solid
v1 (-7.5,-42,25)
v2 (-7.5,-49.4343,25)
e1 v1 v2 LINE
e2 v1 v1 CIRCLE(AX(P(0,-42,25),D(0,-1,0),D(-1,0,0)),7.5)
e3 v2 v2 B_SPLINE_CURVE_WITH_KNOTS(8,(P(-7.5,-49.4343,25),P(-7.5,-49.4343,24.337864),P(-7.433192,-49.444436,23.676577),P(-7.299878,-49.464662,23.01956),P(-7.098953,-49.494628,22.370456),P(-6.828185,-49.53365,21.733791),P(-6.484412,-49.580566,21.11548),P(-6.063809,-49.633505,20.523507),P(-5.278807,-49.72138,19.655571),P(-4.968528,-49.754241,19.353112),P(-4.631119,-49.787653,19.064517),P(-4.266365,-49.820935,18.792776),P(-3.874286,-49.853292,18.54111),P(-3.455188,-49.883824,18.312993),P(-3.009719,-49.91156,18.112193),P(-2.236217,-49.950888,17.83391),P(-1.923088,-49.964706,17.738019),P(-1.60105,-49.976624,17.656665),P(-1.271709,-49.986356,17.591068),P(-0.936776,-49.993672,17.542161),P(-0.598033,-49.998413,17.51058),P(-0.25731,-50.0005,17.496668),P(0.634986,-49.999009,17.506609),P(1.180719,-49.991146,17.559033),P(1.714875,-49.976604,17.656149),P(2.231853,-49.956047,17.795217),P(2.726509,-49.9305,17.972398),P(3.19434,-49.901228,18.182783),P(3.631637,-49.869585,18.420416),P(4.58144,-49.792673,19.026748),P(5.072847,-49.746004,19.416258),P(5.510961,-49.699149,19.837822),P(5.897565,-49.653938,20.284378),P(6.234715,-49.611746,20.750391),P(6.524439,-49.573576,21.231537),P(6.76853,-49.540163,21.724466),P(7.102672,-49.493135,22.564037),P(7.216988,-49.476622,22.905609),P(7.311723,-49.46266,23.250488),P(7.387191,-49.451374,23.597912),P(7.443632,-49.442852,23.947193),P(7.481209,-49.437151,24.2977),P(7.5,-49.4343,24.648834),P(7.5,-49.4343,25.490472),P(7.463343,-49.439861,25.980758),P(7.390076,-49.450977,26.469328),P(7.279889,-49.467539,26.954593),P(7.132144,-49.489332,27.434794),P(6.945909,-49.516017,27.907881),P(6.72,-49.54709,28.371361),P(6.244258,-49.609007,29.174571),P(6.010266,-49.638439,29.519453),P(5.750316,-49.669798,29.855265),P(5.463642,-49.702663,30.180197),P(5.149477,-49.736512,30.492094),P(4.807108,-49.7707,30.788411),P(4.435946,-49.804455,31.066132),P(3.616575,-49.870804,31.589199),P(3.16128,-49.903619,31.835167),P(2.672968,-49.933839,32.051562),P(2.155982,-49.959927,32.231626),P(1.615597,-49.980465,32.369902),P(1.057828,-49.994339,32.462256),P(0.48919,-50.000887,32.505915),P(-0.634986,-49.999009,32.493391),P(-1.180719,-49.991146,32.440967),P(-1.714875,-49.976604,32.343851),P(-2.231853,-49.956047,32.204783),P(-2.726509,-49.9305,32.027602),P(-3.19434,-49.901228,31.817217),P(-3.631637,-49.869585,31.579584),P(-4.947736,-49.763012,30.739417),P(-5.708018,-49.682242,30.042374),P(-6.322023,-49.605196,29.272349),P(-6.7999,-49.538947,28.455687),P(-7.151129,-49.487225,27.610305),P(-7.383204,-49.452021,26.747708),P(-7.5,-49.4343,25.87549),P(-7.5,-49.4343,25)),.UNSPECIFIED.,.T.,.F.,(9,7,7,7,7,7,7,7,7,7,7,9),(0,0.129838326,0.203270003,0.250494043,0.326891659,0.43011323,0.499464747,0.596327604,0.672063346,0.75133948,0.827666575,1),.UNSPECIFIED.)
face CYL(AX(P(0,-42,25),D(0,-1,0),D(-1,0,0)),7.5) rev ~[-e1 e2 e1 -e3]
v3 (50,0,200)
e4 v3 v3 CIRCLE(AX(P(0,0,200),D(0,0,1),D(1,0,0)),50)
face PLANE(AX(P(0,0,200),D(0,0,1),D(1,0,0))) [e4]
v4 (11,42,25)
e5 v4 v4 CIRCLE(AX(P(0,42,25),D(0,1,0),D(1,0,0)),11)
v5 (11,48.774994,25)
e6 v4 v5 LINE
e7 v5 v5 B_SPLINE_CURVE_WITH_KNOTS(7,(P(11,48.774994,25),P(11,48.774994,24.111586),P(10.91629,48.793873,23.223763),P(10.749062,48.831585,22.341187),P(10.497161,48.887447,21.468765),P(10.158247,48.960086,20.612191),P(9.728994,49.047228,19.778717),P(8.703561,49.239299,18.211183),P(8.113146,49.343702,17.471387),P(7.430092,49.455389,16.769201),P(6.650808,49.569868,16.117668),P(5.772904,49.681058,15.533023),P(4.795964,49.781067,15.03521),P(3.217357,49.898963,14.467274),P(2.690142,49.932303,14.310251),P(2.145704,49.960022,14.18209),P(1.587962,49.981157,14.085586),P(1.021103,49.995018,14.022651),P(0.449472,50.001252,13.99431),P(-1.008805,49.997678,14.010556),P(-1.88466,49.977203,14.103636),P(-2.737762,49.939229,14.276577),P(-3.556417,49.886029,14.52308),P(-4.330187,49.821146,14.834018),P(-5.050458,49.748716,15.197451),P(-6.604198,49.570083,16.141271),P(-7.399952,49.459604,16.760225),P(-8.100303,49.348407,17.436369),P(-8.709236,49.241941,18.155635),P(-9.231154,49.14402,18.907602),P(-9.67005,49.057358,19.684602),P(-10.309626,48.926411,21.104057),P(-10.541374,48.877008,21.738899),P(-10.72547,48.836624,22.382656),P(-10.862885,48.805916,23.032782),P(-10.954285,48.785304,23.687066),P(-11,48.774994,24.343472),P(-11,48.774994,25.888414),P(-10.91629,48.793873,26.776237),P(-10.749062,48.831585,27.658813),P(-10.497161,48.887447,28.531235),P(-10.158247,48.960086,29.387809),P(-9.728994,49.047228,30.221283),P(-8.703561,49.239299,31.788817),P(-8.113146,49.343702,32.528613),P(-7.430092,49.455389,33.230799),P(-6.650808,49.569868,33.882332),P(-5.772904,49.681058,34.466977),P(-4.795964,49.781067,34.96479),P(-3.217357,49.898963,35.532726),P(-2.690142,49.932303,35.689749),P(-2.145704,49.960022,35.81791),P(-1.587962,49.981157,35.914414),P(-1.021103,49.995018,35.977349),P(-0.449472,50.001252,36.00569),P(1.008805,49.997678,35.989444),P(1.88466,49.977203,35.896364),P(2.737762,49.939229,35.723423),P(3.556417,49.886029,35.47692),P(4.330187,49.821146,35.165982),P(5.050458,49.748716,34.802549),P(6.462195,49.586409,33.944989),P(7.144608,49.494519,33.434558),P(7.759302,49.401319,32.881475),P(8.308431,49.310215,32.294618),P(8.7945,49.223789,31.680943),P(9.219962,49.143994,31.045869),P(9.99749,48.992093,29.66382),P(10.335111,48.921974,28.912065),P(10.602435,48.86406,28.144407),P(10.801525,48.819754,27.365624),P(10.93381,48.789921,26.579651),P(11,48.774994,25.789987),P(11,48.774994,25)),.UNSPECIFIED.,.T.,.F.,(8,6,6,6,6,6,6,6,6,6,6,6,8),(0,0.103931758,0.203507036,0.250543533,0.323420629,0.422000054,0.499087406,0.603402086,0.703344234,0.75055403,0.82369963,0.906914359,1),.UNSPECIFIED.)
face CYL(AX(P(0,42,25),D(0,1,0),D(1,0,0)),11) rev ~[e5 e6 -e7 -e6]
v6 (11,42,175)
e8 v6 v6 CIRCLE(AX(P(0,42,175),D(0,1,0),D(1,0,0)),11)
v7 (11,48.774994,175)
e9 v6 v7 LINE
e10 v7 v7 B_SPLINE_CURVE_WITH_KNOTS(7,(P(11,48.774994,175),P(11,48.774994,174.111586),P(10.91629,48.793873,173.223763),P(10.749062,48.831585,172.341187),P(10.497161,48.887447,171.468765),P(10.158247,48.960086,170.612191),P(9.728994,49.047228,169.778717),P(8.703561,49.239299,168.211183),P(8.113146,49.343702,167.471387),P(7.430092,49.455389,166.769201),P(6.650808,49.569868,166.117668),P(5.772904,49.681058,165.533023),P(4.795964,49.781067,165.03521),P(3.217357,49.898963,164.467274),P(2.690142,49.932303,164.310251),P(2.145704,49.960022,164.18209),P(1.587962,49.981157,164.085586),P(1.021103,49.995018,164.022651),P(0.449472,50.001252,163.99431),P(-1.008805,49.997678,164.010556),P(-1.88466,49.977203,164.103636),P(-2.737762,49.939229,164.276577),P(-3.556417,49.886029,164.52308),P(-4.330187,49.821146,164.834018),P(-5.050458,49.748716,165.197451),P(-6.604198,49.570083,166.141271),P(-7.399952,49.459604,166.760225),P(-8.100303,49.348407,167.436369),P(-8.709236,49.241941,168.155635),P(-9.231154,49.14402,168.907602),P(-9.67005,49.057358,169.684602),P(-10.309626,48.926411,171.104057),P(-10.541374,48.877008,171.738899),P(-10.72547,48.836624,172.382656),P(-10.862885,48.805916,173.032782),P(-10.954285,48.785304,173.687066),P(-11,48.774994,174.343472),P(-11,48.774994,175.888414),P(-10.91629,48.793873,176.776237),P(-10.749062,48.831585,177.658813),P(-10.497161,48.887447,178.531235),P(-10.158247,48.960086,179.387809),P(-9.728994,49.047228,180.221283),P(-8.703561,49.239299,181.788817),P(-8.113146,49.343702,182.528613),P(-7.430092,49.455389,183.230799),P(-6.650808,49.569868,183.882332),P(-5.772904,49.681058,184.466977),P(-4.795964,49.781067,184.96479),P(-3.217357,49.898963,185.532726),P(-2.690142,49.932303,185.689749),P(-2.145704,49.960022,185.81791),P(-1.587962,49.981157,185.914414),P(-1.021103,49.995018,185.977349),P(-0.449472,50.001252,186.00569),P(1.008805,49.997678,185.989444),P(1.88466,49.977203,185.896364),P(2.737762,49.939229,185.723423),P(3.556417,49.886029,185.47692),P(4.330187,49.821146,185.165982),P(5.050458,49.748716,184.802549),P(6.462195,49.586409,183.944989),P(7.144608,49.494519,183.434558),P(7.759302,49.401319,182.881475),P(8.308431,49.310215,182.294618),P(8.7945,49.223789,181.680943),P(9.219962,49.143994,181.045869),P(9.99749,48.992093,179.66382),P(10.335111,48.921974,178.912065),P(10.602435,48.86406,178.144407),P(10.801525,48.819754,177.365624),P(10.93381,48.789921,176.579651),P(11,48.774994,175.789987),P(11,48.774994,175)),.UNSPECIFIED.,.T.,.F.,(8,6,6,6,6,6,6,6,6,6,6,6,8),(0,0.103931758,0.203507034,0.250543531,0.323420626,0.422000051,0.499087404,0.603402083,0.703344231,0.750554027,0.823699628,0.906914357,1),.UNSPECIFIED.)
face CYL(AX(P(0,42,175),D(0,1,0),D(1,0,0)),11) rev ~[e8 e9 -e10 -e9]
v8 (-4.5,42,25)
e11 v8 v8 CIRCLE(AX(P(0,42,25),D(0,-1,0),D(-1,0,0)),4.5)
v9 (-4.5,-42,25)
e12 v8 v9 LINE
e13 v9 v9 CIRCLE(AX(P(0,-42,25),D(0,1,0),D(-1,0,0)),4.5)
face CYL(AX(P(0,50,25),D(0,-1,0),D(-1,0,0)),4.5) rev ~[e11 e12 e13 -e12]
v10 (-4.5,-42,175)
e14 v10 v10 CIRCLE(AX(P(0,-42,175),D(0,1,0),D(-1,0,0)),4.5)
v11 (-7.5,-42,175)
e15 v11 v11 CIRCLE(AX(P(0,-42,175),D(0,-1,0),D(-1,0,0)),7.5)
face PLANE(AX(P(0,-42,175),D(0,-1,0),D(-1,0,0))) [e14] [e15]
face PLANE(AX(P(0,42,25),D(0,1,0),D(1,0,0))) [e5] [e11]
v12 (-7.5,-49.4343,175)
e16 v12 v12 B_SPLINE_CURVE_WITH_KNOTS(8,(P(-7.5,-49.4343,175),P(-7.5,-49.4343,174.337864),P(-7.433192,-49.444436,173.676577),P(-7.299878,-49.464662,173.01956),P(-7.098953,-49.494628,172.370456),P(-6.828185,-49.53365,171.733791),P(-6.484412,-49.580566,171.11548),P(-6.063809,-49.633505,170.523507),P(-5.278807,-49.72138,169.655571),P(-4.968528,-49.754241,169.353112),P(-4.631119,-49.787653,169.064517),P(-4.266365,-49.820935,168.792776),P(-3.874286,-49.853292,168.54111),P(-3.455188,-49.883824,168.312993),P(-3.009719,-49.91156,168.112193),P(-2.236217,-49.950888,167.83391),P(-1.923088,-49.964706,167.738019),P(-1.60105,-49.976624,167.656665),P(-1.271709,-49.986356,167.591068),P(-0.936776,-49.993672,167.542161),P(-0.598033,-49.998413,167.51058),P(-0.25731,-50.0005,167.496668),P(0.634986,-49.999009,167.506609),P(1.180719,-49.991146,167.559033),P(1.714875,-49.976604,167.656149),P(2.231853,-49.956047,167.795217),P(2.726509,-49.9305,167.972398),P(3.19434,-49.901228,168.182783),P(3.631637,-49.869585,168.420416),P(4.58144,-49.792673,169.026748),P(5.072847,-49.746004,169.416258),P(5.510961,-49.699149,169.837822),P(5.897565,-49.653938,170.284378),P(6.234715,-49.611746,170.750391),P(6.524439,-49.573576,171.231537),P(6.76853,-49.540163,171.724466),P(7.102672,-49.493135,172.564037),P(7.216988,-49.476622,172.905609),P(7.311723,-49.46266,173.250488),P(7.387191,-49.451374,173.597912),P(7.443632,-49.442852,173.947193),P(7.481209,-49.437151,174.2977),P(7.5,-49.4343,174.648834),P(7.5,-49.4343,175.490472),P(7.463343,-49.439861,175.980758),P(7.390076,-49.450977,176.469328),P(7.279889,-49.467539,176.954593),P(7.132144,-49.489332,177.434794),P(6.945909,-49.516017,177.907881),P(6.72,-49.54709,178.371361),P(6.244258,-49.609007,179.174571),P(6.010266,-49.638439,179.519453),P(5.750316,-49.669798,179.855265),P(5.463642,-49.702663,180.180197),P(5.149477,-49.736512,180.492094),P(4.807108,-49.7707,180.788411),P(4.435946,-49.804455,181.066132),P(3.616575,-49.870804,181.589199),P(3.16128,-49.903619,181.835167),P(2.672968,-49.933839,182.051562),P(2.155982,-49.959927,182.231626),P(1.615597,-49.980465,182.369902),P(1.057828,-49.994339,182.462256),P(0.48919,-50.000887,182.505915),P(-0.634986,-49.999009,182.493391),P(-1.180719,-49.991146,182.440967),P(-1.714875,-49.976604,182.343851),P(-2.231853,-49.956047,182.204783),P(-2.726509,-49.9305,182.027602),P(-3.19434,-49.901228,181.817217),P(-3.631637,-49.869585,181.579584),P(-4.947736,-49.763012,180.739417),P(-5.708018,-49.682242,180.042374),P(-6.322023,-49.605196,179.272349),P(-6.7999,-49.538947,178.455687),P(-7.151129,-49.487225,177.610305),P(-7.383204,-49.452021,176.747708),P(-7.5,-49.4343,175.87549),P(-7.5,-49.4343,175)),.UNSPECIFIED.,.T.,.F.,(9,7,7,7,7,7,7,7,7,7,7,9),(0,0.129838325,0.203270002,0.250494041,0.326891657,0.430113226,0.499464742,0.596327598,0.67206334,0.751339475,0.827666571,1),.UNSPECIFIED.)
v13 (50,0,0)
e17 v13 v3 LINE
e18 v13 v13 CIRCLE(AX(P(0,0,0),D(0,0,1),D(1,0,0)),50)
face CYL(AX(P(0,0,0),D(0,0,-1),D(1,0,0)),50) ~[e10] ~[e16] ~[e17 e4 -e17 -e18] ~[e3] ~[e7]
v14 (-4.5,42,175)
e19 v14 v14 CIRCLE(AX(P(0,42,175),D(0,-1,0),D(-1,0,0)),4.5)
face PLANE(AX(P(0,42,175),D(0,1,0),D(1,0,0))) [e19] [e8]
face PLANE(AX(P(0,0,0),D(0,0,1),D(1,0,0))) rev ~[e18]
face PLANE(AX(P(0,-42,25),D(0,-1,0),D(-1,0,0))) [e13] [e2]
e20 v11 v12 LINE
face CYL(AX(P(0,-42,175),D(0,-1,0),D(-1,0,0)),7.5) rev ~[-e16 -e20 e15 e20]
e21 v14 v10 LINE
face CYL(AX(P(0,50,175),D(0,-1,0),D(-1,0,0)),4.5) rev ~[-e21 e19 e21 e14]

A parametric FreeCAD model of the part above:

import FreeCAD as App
import Part
import Sketcher
from FreeCAD import Vector
Q = App.Units.Quantity

doc = App.newDocument("Part")
body = doc.addObject("PartDesign::Body", "Body")

# Sketch on XY plane
sketch1 = body.newObject("Sketcher::SketchObject", "Sketch")
sketch1.AttachmentSupport = (doc.getObject("XY_Plane"), [""])
sketch1.MapMode = "FlatFace"
sketch1.addGeometry(Part.Circle(Vector(0, 0, 0), Vector(0, 0, 1), 50), False)
sketch1.addConstraint([
    Sketcher.Constraint("Coincident", 0, 3, -1, 1),
    Sketcher.Constraint("Diameter", 0, Q("100 mm")),
])
pad1 = body.newObject("PartDesign::Pad", "Pad")
pad1.Profile = sketch1
pad1.Length = 200

# Sketch on XZ plane
sketch2 = body.newObject("Sketcher::SketchObject", "Sketch001")
sketch2.AttachmentSupport = (doc.getObject("XZ_Plane"), [""])
sketch2.MapMode = "FlatFace"
sketch2.AttachmentOffset = App.Placement(Vector(0, 0, -50), App.Rotation())
sketch2.addGeometry([
    Part.Circle(Vector(0, 25, 0), Vector(0, 0, 1), 4.5),
    Part.Circle(Vector(0, 175, 0), Vector(0, 0, 1), 4.5),
], False)
sketch2.addConstraint([
    Sketcher.Constraint("Equal", 0, 1),
    Sketcher.Constraint("PointOnObject", 0, 3, -2),
    Sketcher.Constraint("PointOnObject", 1, 3, -2),
    Sketcher.Constraint("Diameter", 0, Q("9 mm")),
    Sketcher.Constraint("DistanceY", -1, 1, 0, 3, Q("25 mm")),
    Sketcher.Constraint("DistanceY", -1, 1, 1, 3, Q("175 mm")),
])
doc.recompute()
hole = body.newObject("PartDesign::Hole", "Hole")
hole.Profile = sketch2
hole.ThreadType = "None"
hole.Diameter = 9
hole.DepthType = "ThroughAll"
hole.HoleCutType = "Counterbore"
hole.HoleCutDiameter = 22
hole.HoleCutDepth = 8
hole.Reversed = True

# Sketch on XZ plane
sketch3 = body.newObject("Sketcher::SketchObject", "Sketch002")
sketch3.AttachmentSupport = (doc.getObject("XZ_Plane"), [""])
sketch3.MapMode = "FlatFace"
sketch3.AttachmentOffset = App.Placement(Vector(0, 0, 50), App.Rotation())
sketch3.addGeometry([
    Part.Circle(Vector(0, 175, 0), Vector(0, 0, 1), 4.5),
    Part.Circle(Vector(0, 25, 0), Vector(0, 0, 1), 4.5),
], False)
sketch3.addConstraint([
    Sketcher.Constraint("Equal", 0, 1),
    Sketcher.Constraint("PointOnObject", 0, 3, -2),
    Sketcher.Constraint("PointOnObject", 1, 3, -2),
    Sketcher.Constraint("Diameter", 0, Q("9 mm")),
    Sketcher.Constraint("DistanceY", -1, 1, 0, 3, Q("175 mm")),
    Sketcher.Constraint("DistanceY", -1, 1, 1, 3, Q("25 mm")),
])
doc.recompute()
hole2 = body.newObject("PartDesign::Hole", "Hole001")
hole2.Profile = sketch3
hole2.ThreadType = "None"
hole2.Diameter = 9
hole2.DepthType = "ThroughAll"
hole2.HoleCutType = "Counterbore"
hole2.HoleCutDiameter = 15
hole2.HoleCutDepth = 8

doc.recompute()
